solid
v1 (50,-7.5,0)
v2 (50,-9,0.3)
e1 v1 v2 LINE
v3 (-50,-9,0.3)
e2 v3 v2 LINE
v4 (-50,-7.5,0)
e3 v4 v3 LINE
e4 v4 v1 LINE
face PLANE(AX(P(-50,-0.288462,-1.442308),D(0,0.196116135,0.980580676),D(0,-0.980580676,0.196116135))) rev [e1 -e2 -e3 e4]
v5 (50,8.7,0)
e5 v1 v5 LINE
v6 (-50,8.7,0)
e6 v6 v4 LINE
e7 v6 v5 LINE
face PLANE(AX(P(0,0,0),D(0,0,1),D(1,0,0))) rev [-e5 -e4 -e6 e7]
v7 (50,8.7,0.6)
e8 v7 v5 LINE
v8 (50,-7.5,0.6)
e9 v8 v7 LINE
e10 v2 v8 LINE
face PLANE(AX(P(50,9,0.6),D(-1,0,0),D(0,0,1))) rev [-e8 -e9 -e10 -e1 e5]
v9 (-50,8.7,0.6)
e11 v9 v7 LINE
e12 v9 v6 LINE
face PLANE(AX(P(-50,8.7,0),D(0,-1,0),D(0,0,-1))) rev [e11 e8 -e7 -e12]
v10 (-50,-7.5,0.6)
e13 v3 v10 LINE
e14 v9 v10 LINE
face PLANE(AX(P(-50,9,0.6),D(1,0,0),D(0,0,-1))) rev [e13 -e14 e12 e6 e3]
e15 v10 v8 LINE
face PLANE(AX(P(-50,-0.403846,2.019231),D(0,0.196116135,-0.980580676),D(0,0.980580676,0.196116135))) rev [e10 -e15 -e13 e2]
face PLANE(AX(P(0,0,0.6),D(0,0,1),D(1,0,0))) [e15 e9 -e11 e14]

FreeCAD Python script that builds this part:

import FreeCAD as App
import Part
import Sketcher
Q = App.Units.Quantity


def add_polygon(sketch, points):
    """Adds a closed chain of lines whose ends are joined by coincident constraints."""
    first, n = sketch.GeometryCount, len(points)
    for a, b in zip(points, points[1:] + points[:1]):
        sketch.addGeometry(Part.LineSegment(App.Vector(*a, 0), App.Vector(*b, 0)), False)
    for i in range(n):
        sketch.addConstraint(Sketcher.Constraint("Coincident", first + i, 2, first + (i + 1) % n, 1))

doc = App.newDocument("Part")
body = doc.addObject("PartDesign::Body", "Body")

# Sketch on XY plane
sketch1 = body.newObject("Sketcher::SketchObject", "Sketch")
sketch1.AttachmentSupport = (doc.getObject("XY_Plane"), [""])
sketch1.MapMode = "FlatFace"
add_polygon(sketch1, [(-50, 9), (-50, -9), (50, -9), (50, 9)])  # lines 0-3
sketch1.addConstraint(Sketcher.Constraint("Vertical", 0))
sketch1.addConstraint(Sketcher.Constraint("Horizontal", 1))
sketch1.addConstraint(Sketcher.Constraint("Vertical", 2))
sketch1.addConstraint(Sketcher.Constraint("Horizontal", 3))
sketch1.addConstraint(Sketcher.Constraint("Symmetric", 0, 2, 2, 2, -1, 1))
sketch1.addConstraint(Sketcher.Constraint("DistanceX", 1, 1, 1, 2, Q("100 mm")))
sketch1.addConstraint(Sketcher.Constraint("DistanceY", 0, 2, 0, 1, Q("18 mm")))
pad1 = body.newObject("PartDesign::Pad", "Pad")
pad1.Profile = sketch1
pad1.Length = 0.6

# Sketch on YZ plane
sketch2 = body.newObject("Sketcher::SketchObject", "Sketch001")
sketch2.AttachmentSupport = (doc.getObject("YZ_Plane"), [""])
sketch2.MapMode = "FlatFace"
sketch2.AttachmentOffset = App.Placement(App.Vector(0, 0, 50), App.Rotation())
add_polygon(sketch2, [(-9, 0.6), (-9, 0.3), (-7.5, 0.6)])  # lines 0-2
add_polygon(sketch2, [(-7.5, 0), (-9, 0.3), (-9, 0)])  # lines 3-5
add_polygon(sketch2, [(9, 0.6), (8.7, 0.6), (8.7, 0), (9, 0)])  # lines 6-9
sketch2.addConstraint(Sketcher.Constraint("Vertical", 0))
sketch2.addConstraint(Sketcher.Constraint("Horizontal", 2))
sketch2.addConstraint(Sketcher.Constraint("Vertical", 4))
sketch2.addConstraint(Sketcher.Constraint("Horizontal", 5))
sketch2.addConstraint(Sketcher.Constraint("Horizontal", 6))
sketch2.addConstraint(Sketcher.Constraint("Vertical", 7))
sketch2.addConstraint(Sketcher.Constraint("Horizontal", 8))
sketch2.addConstraint(Sketcher.Constraint("Vertical", 9))
sketch2.addConstraint(Sketcher.Constraint("Coincident", 3, 2, 0, 2))
sketch2.addConstraint(Sketcher.Constraint("Symmetric", 4, 2, 8, 2, -1, 1))
sketch2.addConstraint(Sketcher.Constraint("PointOnObject", 4, 2, -1))
sketch2.addConstraint(Sketcher.Constraint("Horizontal", 2, 2, 6, 2))
sketch2.addConstraint(Sketcher.Constraint("Vertical", 1, 2, 5, 2))
sketch2.addConstraint(Sketcher.Constraint("Equal", 8, 0))
sketch2.addConstraint(Sketcher.Constraint("Equal", 0, 4))
sketch2.addConstraint(Sketcher.Constraint("DistanceX", 2, 2, 2, 1, Q("1.5 mm")))
sketch2.addConstraint(Sketcher.Constraint("DistanceX", 6, 2, 6, 1, Q("0.3 mm")))
sketch2.addConstraint(Sketcher.Constraint("DistanceX", 0, 2, -1, 1, Q("9 mm")))
pocket1 = body.newObject("PartDesign::Pocket", "Pocket")
pocket1.Profile = sketch2
pocket1.Length = 100

doc.recompute()
